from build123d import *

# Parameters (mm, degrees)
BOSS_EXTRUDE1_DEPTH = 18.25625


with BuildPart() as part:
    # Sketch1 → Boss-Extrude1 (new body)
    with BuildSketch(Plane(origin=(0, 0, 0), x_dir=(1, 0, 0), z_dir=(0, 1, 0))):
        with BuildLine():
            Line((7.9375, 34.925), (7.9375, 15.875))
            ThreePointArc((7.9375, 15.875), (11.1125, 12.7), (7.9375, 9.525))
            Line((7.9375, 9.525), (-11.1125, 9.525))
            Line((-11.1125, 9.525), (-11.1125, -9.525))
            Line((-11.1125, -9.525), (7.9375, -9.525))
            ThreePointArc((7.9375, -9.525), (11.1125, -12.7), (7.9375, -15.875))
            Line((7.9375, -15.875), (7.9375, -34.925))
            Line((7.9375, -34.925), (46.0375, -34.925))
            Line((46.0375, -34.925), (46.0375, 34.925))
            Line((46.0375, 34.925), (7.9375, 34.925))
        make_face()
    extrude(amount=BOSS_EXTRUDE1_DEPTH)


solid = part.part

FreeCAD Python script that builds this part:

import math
import FreeCAD as App
import Part
import Sketcher
Q = App.Units.Quantity

doc = App.newDocument("Part")
body = doc.addObject("PartDesign::Body", "Body")

sketch1 = body.newObject("Sketcher::SketchObject", "Sketch")
sketch1.AttachmentSupport = (doc.getObject("XZ_Plane"), [""])
sketch1.MapMode = "FlatFace"
sketch1.addGeometry([
    Part.LineSegment(App.Vector(7.9, -34.9, 0), App.Vector(7.9, -15.9, 0)),
    Part.ArcOfCircle(Part.Circle(App.Vector(7.9, -12.7, 0), App.Vector(0, 0, 1), 3.2), math.radians(-90), math.radians(90)),
    Part.LineSegment(App.Vector(7.9, -9.5, 0), App.Vector(-11.1, -9.5, 0)),
    Part.LineSegment(App.Vector(-11.1, -9.5, 0), App.Vector(-11.1, 9.5, 0)),
    Part.LineSegment(App.Vector(-11.1, 9.5, 0), App.Vector(7.9, 9.5, 0)),
    Part.ArcOfCircle(Part.Circle(App.Vector(7.9, 12.7, 0), App.Vector(0, 0, 1), 3.2), math.radians(-90), math.radians(90)),
    Part.LineSegment(App.Vector(7.9, 15.9, 0), App.Vector(7.9, 34.9, 0)),
    Part.LineSegment(App.Vector(7.9, 34.9, 0), App.Vector(46, 34.9, 0)),
    Part.LineSegment(App.Vector(46, 34.9, 0), App.Vector(46, -34.9, 0)),
    Part.LineSegment(App.Vector(46, -34.9, 0), App.Vector(7.9, -34.9, 0)),
], False)
sketch1.addConstraint([
    Sketcher.Constraint("Coincident", 0, 2, 1, 1),
    Sketcher.Constraint("Tangent", 1, 2, 2, 1),
    Sketcher.Constraint("Coincident", 2, 2, 3, 1),
    Sketcher.Constraint("Coincident", 3, 2, 4, 1),
    Sketcher.Constraint("Tangent", 4, 2, 5, 1),
    Sketcher.Constraint("Coincident", 5, 2, 6, 1),
    Sketcher.Constraint("Coincident", 6, 2, 7, 1),
    Sketcher.Constraint("Coincident", 7, 2, 8, 1),
    Sketcher.Constraint("Coincident", 8, 2, 9, 1),
    Sketcher.Constraint("Coincident", 9, 2, 0, 1),
    Sketcher.Constraint("Vertical", 0),
    Sketcher.Constraint("Horizontal", 2),
    Sketcher.Constraint("Vertical", 3),
    Sketcher.Constraint("Horizontal", 4),
    Sketcher.Constraint("Vertical", 6),
    Sketcher.Constraint("Horizontal", 7),
    Sketcher.Constraint("Vertical", 8),
    Sketcher.Constraint("Horizontal", 9),
    Sketcher.Constraint("Equal", 1, 5),
    Sketcher.Constraint("Symmetric", 1, 3, 5, 3, -1),
    Sketcher.Constraint("Symmetric", 6, 2, 9, 2, -1),
    Sketcher.Constraint("Vertical", 5, 3, 0, 2),
    Sketcher.Constraint("Equal", 4, 0),
    Sketcher.Constraint("Equal", 0, 3),
    Sketcher.Constraint("DistanceX", 7, 1, 7, 2, Q("1.5 in")),
    Sketcher.Constraint("Radius", 1, Q("0.125 in")),
    Sketcher.Constraint("DistanceY", 1, 3, 5, 3, Q("1 in")),
    Sketcher.Constraint("DistanceX", -1, 1, 1, 3, Q("0.3125 in")),
])
pad1 = body.newObject("PartDesign::Pad", "Pad")
pad1.Profile = sketch1
pad1.Length = Q("0.71875 in")
pad1.Reversed = True

doc.recompute()
